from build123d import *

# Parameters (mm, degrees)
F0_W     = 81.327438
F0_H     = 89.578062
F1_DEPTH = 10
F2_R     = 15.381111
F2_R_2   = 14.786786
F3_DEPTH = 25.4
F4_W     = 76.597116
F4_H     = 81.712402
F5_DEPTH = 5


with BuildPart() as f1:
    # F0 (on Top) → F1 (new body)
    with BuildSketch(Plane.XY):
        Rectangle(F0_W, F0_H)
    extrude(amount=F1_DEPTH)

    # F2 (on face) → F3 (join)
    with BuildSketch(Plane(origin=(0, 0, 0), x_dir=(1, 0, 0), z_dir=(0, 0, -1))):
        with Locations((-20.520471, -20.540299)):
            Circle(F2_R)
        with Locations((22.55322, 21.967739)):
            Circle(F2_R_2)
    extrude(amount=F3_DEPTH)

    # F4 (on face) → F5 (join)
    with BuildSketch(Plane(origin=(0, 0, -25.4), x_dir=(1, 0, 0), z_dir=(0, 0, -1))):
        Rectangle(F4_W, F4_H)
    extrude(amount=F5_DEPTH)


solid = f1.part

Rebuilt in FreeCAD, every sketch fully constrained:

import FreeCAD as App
import Part
import Sketcher

doc = App.newDocument("Part")
params = doc.addObject("Spreadsheet::Sheet", "Params")
for row, (alias, value) in enumerate([
    ("pad1_length", "10 mm"),
    ("pad2_length", "25.4 mm"),
    ("pad3_length", "5 mm"),
], start=1):
    params.set(f"A{row}", alias)
    params.set(f"B{row}", "=" + value)
    params.setAlias(f"B{row}", alias)

body = doc.addObject("PartDesign::Body", "Body")

sketch1 = doc.addObject("Sketcher::SketchObject", "Sketch")
body.addObject(sketch1)
sketch1.AttachmentSupport = (doc.XY_Plane, [""])
sketch1.MapMode = "FlatFace"
sketch1.addGeometry(Part.LineSegment(App.Vector(-40.663719, 44.789031, 0), App.Vector(-40.663719, -44.789031, 0)), False)
sketch1.addGeometry(Part.LineSegment(App.Vector(-40.663719, -44.789031, 0), App.Vector(40.663719, -44.789031, 0)), False)
sketch1.addGeometry(Part.LineSegment(App.Vector(40.663719, -44.789031, 0), App.Vector(40.663719, 44.789031, 0)), False)
sketch1.addGeometry(Part.LineSegment(App.Vector(40.663719, 44.789031, 0), App.Vector(-40.663719, 44.789031, 0)), False)
sketch1.addConstraint(Sketcher.Constraint("Coincident", 0, 2, 1, 1))
sketch1.addConstraint(Sketcher.Constraint("Coincident", 1, 2, 2, 1))
sketch1.addConstraint(Sketcher.Constraint("Coincident", 2, 2, 3, 1))
sketch1.addConstraint(Sketcher.Constraint("Coincident", 3, 2, 0, 1))
sketch1.addConstraint(Sketcher.Constraint("Vertical", 0))
sketch1.addConstraint(Sketcher.Constraint("Horizontal", 1))
sketch1.addConstraint(Sketcher.Constraint("Vertical", 2))
sketch1.addConstraint(Sketcher.Constraint("Horizontal", 3))
sketch1.addConstraint(Sketcher.Constraint("Symmetric", 0, 2, 2, 2, -1, 1))
sketch1.addConstraint(Sketcher.Constraint("DistanceX", 1, 1, 1, 2, 81.327438))
sketch1.addConstraint(Sketcher.Constraint("DistanceY", 0, 2, 0, 1, 89.578062))
pad1 = doc.addObject("PartDesign::Pad", "Pad")
body.addObject(pad1)
pad1.Profile = sketch1
pad1.setExpression("Length", "Params.pad1_length")

sketch2 = doc.addObject("Sketcher::SketchObject", "Sketch001")
body.addObject(sketch2)
sketch2.AttachmentSupport = (doc.XY_Plane, [""])
sketch2.MapMode = "FlatFace"
sketch2.addGeometry(Part.Circle(App.Vector(-20.520471, 20.540299, 0), App.Vector(0, 0, 1), 15.381111), False)
sketch2.addGeometry(Part.Circle(App.Vector(22.55322, -21.967739, 0), App.Vector(0, 0, 1), 14.786786), False)
sketch2.addConstraint(Sketcher.Constraint("Diameter", 1, 29.573572))
sketch2.addConstraint(Sketcher.Constraint("Diameter", 0, 30.762222))
sketch2.addConstraint(Sketcher.Constraint("DistanceY", -1, 1, 0, 3, 20.540299))
sketch2.addConstraint(Sketcher.Constraint("DistanceX", 0, 3, -1, 1, 20.520471))
sketch2.addConstraint(Sketcher.Constraint("DistanceX", -1, 1, 1, 3, 22.55322))
sketch2.addConstraint(Sketcher.Constraint("DistanceY", 1, 3, -1, 1, 21.967739))
pad2 = doc.addObject("PartDesign::Pad", "Pad001")
body.addObject(pad2)
pad2.Profile = sketch2
pad2.setExpression("Length", "Params.pad2_length")
pad2.Reversed = True

sketch3 = doc.addObject("Sketcher::SketchObject", "Sketch002")
body.addObject(sketch3)
sketch3.AttachmentSupport = (doc.XY_Plane, [""])
sketch3.MapMode = "FlatFace"
sketch3.AttachmentOffset = App.Placement(App.Vector(0, 0, -25.4), App.Rotation())
sketch3.addGeometry(Part.LineSegment(App.Vector(-38.298558, -40.856201, 0), App.Vector(-38.298558, 40.856201, 0)), False)
sketch3.addGeometry(Part.LineSegment(App.Vector(-38.298558, 40.856201, 0), App.Vector(38.298558, 40.856201, 0)), False)
sketch3.addGeometry(Part.LineSegment(App.Vector(38.298558, 40.856201, 0), App.Vector(38.298558, -40.856201, 0)), False)
sketch3.addGeometry(Part.LineSegment(App.Vector(38.298558, -40.856201, 0), App.Vector(-38.298558, -40.856201, 0)), False)
sketch3.addConstraint(Sketcher.Constraint("Coincident", 0, 2, 1, 1))
sketch3.addConstraint(Sketcher.Constraint("Coincident", 1, 2, 2, 1))
sketch3.addConstraint(Sketcher.Constraint("Coincident", 2, 2, 3, 1))
sketch3.addConstraint(Sketcher.Constraint("Coincident", 3, 2, 0, 1))
sketch3.addConstraint(Sketcher.Constraint("Vertical", 0))
sketch3.addConstraint(Sketcher.Constraint("Horizontal", 1))
sketch3.addConstraint(Sketcher.Constraint("Vertical", 2))
sketch3.addConstraint(Sketcher.Constraint("Horizontal", 3))
sketch3.addConstraint(Sketcher.Constraint("Symmetric", 0, 2, 2, 2, -1, 1))
sketch3.addConstraint(Sketcher.Constraint("DistanceY", 0, 1, 0, 2, 81.712402))
sketch3.addConstraint(Sketcher.Constraint("DistanceX", 1, 1, 1, 2, 76.597116))
pad3 = doc.addObject("PartDesign::Pad", "Pad002")
body.addObject(pad3)
pad3.Profile = sketch3
pad3.setExpression("Length", "Params.pad3_length")
pad3.Reversed = True

doc.recompute()
